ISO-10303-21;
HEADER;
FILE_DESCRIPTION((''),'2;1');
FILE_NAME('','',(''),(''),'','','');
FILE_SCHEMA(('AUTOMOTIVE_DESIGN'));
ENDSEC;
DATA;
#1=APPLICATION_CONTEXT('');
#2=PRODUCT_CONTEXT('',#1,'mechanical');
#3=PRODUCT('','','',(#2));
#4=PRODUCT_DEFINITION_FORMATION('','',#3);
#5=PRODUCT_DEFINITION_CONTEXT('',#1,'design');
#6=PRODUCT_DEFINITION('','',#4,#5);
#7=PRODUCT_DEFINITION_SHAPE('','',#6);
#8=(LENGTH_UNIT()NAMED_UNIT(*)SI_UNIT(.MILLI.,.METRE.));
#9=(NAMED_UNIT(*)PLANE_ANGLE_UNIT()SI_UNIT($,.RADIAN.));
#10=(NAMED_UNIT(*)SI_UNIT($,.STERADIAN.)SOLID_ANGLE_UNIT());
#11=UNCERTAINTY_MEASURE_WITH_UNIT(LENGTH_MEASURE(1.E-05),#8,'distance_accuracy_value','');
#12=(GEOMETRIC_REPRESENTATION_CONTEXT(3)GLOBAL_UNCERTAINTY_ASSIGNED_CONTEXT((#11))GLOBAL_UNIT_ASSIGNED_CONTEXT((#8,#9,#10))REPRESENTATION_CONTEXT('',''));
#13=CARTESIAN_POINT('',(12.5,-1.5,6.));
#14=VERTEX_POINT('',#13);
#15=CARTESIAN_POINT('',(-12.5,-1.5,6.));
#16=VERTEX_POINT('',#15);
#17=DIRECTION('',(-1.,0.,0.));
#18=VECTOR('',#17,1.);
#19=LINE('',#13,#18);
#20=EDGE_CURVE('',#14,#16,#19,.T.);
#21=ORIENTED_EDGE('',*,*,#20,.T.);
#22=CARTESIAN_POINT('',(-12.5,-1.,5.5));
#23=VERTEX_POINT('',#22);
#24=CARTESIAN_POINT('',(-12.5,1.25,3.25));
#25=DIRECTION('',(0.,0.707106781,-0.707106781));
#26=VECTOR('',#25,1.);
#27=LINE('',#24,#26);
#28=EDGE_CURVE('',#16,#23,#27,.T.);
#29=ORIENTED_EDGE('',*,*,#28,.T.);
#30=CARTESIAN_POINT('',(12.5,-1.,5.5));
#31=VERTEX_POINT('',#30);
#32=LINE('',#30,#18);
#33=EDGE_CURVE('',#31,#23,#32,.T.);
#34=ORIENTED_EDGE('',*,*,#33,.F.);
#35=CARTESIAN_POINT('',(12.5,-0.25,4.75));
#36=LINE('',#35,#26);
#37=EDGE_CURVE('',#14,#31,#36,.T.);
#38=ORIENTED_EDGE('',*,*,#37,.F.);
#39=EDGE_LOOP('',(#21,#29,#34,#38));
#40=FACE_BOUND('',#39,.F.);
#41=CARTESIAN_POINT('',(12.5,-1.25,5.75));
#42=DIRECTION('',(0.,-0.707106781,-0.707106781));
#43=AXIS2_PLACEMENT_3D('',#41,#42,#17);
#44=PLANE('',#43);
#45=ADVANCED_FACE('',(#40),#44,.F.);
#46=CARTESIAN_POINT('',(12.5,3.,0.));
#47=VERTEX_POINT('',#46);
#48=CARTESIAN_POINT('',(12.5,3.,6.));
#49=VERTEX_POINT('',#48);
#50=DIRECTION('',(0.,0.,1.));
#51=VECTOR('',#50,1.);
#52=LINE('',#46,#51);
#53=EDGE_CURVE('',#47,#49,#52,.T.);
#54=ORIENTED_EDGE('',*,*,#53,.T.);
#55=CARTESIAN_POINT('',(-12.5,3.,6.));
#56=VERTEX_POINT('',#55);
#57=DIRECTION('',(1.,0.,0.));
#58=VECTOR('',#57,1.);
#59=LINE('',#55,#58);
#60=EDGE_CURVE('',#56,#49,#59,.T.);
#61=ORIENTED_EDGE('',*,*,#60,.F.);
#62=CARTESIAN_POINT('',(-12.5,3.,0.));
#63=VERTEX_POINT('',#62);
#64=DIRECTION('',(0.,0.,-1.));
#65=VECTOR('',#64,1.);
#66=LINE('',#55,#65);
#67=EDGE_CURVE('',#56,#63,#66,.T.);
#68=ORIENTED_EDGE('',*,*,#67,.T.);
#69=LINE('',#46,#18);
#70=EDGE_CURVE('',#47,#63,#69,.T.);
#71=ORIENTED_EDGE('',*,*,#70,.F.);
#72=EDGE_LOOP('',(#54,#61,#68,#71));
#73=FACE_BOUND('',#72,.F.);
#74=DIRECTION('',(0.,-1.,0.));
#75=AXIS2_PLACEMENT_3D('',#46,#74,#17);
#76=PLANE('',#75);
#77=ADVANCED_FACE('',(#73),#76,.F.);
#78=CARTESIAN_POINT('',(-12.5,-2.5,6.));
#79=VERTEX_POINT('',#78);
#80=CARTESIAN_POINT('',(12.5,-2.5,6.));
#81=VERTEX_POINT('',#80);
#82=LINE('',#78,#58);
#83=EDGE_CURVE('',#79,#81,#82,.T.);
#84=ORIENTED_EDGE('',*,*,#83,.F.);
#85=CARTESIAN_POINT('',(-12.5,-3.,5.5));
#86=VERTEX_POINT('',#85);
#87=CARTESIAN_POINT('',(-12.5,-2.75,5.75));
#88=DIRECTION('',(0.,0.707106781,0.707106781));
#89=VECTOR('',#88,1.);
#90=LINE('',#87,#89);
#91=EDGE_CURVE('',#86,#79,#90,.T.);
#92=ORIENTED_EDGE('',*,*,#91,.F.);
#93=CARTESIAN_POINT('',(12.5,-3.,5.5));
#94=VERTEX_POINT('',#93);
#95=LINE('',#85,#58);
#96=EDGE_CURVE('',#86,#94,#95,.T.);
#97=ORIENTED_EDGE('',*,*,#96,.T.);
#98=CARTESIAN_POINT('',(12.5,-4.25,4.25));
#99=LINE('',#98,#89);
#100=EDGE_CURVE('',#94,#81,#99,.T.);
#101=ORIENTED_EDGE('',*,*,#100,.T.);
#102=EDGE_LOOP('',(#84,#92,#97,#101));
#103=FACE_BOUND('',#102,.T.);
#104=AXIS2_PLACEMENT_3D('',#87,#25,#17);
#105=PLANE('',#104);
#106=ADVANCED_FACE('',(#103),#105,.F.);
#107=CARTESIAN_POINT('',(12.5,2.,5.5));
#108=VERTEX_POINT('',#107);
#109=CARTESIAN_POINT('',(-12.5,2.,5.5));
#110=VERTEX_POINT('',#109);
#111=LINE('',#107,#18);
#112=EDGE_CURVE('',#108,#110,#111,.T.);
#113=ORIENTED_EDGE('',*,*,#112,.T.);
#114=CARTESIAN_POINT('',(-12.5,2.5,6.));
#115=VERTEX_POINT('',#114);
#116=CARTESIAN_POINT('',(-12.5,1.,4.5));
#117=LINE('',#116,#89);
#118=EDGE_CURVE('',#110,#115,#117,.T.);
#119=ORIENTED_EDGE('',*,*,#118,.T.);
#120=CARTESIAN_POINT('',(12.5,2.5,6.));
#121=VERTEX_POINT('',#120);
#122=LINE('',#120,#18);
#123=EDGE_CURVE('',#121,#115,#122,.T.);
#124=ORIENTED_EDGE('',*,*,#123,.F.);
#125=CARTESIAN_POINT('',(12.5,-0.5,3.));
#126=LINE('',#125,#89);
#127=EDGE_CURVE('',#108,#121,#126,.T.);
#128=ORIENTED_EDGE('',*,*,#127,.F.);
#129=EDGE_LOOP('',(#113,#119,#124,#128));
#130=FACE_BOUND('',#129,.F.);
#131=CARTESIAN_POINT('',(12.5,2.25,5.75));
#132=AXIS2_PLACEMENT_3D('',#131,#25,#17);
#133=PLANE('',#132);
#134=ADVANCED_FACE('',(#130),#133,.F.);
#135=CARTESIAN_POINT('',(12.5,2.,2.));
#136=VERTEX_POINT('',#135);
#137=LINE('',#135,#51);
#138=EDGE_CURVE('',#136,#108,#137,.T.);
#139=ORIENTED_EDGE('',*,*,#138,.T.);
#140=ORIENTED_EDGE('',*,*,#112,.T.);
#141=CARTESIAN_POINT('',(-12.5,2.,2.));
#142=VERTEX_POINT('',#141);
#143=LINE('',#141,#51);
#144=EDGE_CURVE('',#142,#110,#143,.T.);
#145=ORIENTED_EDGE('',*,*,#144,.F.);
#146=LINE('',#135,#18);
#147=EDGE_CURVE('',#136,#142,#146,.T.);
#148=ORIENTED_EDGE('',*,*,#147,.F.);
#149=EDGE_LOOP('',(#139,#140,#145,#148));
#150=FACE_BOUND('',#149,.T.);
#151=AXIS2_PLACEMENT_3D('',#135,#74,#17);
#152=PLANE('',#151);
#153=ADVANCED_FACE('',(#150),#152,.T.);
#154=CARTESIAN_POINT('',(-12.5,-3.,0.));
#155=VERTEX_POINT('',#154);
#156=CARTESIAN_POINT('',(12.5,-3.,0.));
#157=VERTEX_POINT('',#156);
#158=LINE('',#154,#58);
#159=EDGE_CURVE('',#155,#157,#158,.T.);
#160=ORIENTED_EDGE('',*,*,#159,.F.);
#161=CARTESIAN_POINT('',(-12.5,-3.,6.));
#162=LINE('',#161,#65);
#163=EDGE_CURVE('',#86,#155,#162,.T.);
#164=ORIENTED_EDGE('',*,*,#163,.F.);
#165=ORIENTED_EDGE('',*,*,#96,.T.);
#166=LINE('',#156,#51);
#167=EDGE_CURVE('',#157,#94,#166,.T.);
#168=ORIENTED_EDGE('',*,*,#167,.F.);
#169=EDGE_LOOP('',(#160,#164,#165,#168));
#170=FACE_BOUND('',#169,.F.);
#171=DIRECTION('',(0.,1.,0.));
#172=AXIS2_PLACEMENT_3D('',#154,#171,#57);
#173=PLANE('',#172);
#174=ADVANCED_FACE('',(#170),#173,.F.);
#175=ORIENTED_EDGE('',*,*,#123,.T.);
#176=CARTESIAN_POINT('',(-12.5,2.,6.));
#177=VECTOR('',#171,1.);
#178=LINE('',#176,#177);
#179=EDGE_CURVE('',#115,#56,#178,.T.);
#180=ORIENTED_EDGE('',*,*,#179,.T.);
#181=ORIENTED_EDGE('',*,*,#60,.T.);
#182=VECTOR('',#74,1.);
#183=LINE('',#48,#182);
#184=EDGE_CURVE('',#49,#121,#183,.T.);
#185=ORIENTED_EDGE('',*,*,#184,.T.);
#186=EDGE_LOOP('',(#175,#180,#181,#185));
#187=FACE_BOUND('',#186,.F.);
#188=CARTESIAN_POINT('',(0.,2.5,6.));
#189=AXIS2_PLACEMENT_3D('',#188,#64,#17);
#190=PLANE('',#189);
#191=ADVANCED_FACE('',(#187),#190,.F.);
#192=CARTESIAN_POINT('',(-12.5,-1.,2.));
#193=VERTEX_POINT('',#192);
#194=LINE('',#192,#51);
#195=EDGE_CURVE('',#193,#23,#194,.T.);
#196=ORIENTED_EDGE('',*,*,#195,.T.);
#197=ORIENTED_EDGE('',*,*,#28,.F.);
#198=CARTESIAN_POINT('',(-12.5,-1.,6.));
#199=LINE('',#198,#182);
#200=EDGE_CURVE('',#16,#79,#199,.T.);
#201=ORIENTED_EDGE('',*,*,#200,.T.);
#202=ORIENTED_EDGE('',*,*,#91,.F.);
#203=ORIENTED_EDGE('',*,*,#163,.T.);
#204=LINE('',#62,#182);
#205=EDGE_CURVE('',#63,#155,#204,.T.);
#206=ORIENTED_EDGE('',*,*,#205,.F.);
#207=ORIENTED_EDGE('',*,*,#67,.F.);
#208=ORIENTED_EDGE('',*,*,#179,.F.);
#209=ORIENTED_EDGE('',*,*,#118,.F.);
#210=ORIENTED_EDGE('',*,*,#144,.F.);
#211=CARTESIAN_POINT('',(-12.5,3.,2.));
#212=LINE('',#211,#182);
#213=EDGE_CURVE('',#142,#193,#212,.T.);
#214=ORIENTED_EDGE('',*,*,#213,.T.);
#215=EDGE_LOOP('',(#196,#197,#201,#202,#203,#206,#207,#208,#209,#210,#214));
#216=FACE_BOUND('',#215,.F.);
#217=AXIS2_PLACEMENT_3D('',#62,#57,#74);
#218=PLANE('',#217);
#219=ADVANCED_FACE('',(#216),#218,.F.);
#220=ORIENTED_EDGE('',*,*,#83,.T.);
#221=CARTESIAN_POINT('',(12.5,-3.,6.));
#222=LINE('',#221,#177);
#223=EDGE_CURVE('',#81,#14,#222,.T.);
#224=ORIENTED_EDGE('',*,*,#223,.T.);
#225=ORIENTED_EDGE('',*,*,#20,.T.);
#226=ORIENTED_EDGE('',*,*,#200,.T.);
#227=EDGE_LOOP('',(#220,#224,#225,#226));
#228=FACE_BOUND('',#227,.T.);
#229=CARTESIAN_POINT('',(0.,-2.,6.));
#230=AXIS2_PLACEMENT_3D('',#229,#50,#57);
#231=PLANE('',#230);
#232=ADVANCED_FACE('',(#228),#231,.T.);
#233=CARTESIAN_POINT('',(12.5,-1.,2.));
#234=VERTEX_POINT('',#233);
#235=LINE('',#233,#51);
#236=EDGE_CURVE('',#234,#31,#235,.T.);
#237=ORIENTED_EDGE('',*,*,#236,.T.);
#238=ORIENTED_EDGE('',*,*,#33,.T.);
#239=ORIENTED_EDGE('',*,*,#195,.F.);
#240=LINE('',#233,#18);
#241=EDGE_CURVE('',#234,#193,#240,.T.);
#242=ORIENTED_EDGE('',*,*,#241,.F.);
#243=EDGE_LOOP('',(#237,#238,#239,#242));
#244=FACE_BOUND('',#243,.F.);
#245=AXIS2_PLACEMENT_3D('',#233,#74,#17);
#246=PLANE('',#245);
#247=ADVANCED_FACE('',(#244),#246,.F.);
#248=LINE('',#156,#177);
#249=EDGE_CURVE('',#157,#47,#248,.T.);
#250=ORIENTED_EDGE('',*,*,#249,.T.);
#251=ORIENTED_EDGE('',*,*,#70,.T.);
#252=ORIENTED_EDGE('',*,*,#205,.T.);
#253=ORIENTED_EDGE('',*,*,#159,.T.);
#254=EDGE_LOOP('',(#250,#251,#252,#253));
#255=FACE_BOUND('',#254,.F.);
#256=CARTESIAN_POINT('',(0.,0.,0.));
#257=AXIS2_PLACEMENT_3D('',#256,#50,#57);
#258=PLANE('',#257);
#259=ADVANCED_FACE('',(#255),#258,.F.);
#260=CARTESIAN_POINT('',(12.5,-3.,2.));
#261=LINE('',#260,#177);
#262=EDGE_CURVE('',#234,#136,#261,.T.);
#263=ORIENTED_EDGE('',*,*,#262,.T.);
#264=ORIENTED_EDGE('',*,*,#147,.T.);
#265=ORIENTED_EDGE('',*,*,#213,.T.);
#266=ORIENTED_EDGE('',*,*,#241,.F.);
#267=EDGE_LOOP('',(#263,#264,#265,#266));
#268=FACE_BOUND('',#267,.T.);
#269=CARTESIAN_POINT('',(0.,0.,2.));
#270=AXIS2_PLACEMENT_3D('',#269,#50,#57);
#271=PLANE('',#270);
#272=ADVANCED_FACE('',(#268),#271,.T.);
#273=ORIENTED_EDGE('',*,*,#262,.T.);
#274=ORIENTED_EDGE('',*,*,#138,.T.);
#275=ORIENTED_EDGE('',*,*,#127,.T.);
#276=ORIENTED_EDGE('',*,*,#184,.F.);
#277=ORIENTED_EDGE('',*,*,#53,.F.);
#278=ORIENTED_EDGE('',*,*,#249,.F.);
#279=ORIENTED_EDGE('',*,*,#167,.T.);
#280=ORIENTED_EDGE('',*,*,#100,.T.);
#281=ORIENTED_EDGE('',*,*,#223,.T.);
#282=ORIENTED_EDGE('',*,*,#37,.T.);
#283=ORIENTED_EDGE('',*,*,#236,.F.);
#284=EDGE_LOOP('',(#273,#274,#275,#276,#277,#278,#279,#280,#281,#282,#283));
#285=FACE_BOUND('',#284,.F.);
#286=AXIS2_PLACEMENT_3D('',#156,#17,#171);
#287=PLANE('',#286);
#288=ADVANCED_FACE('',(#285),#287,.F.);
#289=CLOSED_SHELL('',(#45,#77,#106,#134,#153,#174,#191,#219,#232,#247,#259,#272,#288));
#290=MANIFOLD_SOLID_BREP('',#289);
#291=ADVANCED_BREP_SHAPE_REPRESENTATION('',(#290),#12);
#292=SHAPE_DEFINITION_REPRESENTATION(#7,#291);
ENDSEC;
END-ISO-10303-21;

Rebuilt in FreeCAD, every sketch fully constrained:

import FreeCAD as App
import Part
import Sketcher

V = App.Vector
Q = App.Units.Quantity


def edges_at(feature, points):
    """Names of the edges that pass closest to the given points."""
    edges = feature.Shape.Edges
    near = lambda p: min(range(len(edges)), key=lambda i: edges[i].distToShape(Part.Vertex(*p))[0])
    return sorted({f"Edge{near(p) + 1}" for p in points})

doc = App.newDocument("Part")
body = doc.addObject("PartDesign::Body", "Body")

# Sketch on XY plane
sketch1 = doc.addObject("Sketcher::SketchObject", "Sketch")
body.addObject(sketch1)
sketch1.AttachmentSupport = (doc.XY_Plane, [""])
sketch1.MapMode = "FlatFace"
sketch1.addGeometry([
    Part.LineSegment(V(-12, 3, 0), V(-12, -3, 0)),
    Part.LineSegment(V(-12, -3, 0), V(12, -3, 0)),
    Part.LineSegment(V(12, -3, 0), V(12, 3, 0)),
    Part.LineSegment(V(12, 3, 0), V(-12, 3, 0)),
], False)
sketch1.addConstraint([
    Sketcher.Constraint("Coincident", 0, 2, 1, 1),
    Sketcher.Constraint("Coincident", 1, 2, 2, 1),
    Sketcher.Constraint("Coincident", 2, 2, 3, 1),
    Sketcher.Constraint("Coincident", 3, 2, 0, 1),
    Sketcher.Constraint("Vertical", 0),
    Sketcher.Constraint("Horizontal", 1),
    Sketcher.Constraint("Vertical", 2),
    Sketcher.Constraint("Horizontal", 3),
    Sketcher.Constraint("Symmetric", 0, 2, 2, 2, -1, 1),
    Sketcher.Constraint("DistanceX", 0, 2, -1, 1, Q("12.5 mm")),
    Sketcher.Constraint("DistanceY", 0, 2, 0, 1, Q("6 mm")),
])
pad1 = doc.addObject("PartDesign::Pad", "Pad")
body.addObject(pad1)
pad1.Profile = sketch1
pad1.Length = 2

# Sketch on XY plane
sketch2 = doc.addObject("Sketcher::SketchObject", "Sketch001")
body.addObject(sketch2)
sketch2.AttachmentSupport = (doc.XY_Plane, [""])
sketch2.MapMode = "FlatFace"
sketch2.AttachmentOffset = App.Placement(V(0, 0, 2), App.Rotation())
sketch2.addGeometry([
    Part.LineSegment(V(12.5, 3, 0), V(-12.5, 3, 0)),  # 0
    Part.LineSegment(V(-12.5, 3, 0), V(-12.5, 2, 0)),  # 1
    Part.LineSegment(V(-12.5, 2, 0), V(12.5, 2, 0)),  # 2
    Part.LineSegment(V(12.5, 2, 0), V(12.5, 3, 0)),  # 3
    Part.LineSegment(V(-12.5, -1, 0), V(-12.5, -3, 0)),  # 4
    Part.LineSegment(V(-12.5, -3, 0), V(12.5, -3, 0)),  # 5
    Part.LineSegment(V(12.5, -3, 0), V(12.5, -1, 0)),  # 6
    Part.LineSegment(V(12.5, -1, 0), V(-12.5, -1, 0)),  # 7
], False)
sketch2.addConstraint([
    Sketcher.Constraint("Coincident", 0, 2, 1, 1),
    Sketcher.Constraint("Coincident", 1, 2, 2, 1),
    Sketcher.Constraint("Coincident", 2, 2, 3, 1),
    Sketcher.Constraint("Coincident", 3, 2, 0, 1),
    Sketcher.Constraint("Coincident", 4, 2, 5, 1),
    Sketcher.Constraint("Coincident", 5, 2, 6, 1),
    Sketcher.Constraint("Coincident", 6, 2, 7, 1),
    Sketcher.Constraint("Coincident", 7, 2, 4, 1),
    Sketcher.Constraint("Horizontal", 0),
    Sketcher.Constraint("Vertical", 1),
    Sketcher.Constraint("Horizontal", 2),
    Sketcher.Constraint("Vertical", 3),
    Sketcher.Constraint("Vertical", 4),
    Sketcher.Constraint("Horizontal", 5),
    Sketcher.Constraint("Vertical", 6),
    Sketcher.Constraint("Horizontal", 7),
    Sketcher.Constraint("Symmetric", 3, 2, 4, 2, -1, 1),
    Sketcher.Constraint("Vertical", 1, 2, 4, 2),
    Sketcher.Constraint("Vertical", 3, 2, 5, 2),
    Sketcher.Constraint("DistanceX", 0, 2, -1, 1, Q("12.5 mm")),
    Sketcher.Constraint("DistanceY", 1, 2, 1, 1, Q("1 mm")),
    Sketcher.Constraint("DistanceY", 4, 2, 4, 1, Q("2 mm")),
    Sketcher.Constraint("DistanceY", -1, 1, 0, 2, Q("3 mm")),
])
pad2 = doc.addObject("PartDesign::Pad", "Pad001")
body.addObject(pad2)
pad2.Profile = sketch2
pad2.Length = 4
doc.recompute()

chamfer = doc.addObject("PartDesign::Chamfer", "Chamfer")
body.addObject(chamfer)
chamfer.Base = (pad2, edges_at(pad2, [(0, -3, 6), (0, -1, 6), (0, 2, 6)]))
chamfer.Size = 0.5

doc.recompute()
